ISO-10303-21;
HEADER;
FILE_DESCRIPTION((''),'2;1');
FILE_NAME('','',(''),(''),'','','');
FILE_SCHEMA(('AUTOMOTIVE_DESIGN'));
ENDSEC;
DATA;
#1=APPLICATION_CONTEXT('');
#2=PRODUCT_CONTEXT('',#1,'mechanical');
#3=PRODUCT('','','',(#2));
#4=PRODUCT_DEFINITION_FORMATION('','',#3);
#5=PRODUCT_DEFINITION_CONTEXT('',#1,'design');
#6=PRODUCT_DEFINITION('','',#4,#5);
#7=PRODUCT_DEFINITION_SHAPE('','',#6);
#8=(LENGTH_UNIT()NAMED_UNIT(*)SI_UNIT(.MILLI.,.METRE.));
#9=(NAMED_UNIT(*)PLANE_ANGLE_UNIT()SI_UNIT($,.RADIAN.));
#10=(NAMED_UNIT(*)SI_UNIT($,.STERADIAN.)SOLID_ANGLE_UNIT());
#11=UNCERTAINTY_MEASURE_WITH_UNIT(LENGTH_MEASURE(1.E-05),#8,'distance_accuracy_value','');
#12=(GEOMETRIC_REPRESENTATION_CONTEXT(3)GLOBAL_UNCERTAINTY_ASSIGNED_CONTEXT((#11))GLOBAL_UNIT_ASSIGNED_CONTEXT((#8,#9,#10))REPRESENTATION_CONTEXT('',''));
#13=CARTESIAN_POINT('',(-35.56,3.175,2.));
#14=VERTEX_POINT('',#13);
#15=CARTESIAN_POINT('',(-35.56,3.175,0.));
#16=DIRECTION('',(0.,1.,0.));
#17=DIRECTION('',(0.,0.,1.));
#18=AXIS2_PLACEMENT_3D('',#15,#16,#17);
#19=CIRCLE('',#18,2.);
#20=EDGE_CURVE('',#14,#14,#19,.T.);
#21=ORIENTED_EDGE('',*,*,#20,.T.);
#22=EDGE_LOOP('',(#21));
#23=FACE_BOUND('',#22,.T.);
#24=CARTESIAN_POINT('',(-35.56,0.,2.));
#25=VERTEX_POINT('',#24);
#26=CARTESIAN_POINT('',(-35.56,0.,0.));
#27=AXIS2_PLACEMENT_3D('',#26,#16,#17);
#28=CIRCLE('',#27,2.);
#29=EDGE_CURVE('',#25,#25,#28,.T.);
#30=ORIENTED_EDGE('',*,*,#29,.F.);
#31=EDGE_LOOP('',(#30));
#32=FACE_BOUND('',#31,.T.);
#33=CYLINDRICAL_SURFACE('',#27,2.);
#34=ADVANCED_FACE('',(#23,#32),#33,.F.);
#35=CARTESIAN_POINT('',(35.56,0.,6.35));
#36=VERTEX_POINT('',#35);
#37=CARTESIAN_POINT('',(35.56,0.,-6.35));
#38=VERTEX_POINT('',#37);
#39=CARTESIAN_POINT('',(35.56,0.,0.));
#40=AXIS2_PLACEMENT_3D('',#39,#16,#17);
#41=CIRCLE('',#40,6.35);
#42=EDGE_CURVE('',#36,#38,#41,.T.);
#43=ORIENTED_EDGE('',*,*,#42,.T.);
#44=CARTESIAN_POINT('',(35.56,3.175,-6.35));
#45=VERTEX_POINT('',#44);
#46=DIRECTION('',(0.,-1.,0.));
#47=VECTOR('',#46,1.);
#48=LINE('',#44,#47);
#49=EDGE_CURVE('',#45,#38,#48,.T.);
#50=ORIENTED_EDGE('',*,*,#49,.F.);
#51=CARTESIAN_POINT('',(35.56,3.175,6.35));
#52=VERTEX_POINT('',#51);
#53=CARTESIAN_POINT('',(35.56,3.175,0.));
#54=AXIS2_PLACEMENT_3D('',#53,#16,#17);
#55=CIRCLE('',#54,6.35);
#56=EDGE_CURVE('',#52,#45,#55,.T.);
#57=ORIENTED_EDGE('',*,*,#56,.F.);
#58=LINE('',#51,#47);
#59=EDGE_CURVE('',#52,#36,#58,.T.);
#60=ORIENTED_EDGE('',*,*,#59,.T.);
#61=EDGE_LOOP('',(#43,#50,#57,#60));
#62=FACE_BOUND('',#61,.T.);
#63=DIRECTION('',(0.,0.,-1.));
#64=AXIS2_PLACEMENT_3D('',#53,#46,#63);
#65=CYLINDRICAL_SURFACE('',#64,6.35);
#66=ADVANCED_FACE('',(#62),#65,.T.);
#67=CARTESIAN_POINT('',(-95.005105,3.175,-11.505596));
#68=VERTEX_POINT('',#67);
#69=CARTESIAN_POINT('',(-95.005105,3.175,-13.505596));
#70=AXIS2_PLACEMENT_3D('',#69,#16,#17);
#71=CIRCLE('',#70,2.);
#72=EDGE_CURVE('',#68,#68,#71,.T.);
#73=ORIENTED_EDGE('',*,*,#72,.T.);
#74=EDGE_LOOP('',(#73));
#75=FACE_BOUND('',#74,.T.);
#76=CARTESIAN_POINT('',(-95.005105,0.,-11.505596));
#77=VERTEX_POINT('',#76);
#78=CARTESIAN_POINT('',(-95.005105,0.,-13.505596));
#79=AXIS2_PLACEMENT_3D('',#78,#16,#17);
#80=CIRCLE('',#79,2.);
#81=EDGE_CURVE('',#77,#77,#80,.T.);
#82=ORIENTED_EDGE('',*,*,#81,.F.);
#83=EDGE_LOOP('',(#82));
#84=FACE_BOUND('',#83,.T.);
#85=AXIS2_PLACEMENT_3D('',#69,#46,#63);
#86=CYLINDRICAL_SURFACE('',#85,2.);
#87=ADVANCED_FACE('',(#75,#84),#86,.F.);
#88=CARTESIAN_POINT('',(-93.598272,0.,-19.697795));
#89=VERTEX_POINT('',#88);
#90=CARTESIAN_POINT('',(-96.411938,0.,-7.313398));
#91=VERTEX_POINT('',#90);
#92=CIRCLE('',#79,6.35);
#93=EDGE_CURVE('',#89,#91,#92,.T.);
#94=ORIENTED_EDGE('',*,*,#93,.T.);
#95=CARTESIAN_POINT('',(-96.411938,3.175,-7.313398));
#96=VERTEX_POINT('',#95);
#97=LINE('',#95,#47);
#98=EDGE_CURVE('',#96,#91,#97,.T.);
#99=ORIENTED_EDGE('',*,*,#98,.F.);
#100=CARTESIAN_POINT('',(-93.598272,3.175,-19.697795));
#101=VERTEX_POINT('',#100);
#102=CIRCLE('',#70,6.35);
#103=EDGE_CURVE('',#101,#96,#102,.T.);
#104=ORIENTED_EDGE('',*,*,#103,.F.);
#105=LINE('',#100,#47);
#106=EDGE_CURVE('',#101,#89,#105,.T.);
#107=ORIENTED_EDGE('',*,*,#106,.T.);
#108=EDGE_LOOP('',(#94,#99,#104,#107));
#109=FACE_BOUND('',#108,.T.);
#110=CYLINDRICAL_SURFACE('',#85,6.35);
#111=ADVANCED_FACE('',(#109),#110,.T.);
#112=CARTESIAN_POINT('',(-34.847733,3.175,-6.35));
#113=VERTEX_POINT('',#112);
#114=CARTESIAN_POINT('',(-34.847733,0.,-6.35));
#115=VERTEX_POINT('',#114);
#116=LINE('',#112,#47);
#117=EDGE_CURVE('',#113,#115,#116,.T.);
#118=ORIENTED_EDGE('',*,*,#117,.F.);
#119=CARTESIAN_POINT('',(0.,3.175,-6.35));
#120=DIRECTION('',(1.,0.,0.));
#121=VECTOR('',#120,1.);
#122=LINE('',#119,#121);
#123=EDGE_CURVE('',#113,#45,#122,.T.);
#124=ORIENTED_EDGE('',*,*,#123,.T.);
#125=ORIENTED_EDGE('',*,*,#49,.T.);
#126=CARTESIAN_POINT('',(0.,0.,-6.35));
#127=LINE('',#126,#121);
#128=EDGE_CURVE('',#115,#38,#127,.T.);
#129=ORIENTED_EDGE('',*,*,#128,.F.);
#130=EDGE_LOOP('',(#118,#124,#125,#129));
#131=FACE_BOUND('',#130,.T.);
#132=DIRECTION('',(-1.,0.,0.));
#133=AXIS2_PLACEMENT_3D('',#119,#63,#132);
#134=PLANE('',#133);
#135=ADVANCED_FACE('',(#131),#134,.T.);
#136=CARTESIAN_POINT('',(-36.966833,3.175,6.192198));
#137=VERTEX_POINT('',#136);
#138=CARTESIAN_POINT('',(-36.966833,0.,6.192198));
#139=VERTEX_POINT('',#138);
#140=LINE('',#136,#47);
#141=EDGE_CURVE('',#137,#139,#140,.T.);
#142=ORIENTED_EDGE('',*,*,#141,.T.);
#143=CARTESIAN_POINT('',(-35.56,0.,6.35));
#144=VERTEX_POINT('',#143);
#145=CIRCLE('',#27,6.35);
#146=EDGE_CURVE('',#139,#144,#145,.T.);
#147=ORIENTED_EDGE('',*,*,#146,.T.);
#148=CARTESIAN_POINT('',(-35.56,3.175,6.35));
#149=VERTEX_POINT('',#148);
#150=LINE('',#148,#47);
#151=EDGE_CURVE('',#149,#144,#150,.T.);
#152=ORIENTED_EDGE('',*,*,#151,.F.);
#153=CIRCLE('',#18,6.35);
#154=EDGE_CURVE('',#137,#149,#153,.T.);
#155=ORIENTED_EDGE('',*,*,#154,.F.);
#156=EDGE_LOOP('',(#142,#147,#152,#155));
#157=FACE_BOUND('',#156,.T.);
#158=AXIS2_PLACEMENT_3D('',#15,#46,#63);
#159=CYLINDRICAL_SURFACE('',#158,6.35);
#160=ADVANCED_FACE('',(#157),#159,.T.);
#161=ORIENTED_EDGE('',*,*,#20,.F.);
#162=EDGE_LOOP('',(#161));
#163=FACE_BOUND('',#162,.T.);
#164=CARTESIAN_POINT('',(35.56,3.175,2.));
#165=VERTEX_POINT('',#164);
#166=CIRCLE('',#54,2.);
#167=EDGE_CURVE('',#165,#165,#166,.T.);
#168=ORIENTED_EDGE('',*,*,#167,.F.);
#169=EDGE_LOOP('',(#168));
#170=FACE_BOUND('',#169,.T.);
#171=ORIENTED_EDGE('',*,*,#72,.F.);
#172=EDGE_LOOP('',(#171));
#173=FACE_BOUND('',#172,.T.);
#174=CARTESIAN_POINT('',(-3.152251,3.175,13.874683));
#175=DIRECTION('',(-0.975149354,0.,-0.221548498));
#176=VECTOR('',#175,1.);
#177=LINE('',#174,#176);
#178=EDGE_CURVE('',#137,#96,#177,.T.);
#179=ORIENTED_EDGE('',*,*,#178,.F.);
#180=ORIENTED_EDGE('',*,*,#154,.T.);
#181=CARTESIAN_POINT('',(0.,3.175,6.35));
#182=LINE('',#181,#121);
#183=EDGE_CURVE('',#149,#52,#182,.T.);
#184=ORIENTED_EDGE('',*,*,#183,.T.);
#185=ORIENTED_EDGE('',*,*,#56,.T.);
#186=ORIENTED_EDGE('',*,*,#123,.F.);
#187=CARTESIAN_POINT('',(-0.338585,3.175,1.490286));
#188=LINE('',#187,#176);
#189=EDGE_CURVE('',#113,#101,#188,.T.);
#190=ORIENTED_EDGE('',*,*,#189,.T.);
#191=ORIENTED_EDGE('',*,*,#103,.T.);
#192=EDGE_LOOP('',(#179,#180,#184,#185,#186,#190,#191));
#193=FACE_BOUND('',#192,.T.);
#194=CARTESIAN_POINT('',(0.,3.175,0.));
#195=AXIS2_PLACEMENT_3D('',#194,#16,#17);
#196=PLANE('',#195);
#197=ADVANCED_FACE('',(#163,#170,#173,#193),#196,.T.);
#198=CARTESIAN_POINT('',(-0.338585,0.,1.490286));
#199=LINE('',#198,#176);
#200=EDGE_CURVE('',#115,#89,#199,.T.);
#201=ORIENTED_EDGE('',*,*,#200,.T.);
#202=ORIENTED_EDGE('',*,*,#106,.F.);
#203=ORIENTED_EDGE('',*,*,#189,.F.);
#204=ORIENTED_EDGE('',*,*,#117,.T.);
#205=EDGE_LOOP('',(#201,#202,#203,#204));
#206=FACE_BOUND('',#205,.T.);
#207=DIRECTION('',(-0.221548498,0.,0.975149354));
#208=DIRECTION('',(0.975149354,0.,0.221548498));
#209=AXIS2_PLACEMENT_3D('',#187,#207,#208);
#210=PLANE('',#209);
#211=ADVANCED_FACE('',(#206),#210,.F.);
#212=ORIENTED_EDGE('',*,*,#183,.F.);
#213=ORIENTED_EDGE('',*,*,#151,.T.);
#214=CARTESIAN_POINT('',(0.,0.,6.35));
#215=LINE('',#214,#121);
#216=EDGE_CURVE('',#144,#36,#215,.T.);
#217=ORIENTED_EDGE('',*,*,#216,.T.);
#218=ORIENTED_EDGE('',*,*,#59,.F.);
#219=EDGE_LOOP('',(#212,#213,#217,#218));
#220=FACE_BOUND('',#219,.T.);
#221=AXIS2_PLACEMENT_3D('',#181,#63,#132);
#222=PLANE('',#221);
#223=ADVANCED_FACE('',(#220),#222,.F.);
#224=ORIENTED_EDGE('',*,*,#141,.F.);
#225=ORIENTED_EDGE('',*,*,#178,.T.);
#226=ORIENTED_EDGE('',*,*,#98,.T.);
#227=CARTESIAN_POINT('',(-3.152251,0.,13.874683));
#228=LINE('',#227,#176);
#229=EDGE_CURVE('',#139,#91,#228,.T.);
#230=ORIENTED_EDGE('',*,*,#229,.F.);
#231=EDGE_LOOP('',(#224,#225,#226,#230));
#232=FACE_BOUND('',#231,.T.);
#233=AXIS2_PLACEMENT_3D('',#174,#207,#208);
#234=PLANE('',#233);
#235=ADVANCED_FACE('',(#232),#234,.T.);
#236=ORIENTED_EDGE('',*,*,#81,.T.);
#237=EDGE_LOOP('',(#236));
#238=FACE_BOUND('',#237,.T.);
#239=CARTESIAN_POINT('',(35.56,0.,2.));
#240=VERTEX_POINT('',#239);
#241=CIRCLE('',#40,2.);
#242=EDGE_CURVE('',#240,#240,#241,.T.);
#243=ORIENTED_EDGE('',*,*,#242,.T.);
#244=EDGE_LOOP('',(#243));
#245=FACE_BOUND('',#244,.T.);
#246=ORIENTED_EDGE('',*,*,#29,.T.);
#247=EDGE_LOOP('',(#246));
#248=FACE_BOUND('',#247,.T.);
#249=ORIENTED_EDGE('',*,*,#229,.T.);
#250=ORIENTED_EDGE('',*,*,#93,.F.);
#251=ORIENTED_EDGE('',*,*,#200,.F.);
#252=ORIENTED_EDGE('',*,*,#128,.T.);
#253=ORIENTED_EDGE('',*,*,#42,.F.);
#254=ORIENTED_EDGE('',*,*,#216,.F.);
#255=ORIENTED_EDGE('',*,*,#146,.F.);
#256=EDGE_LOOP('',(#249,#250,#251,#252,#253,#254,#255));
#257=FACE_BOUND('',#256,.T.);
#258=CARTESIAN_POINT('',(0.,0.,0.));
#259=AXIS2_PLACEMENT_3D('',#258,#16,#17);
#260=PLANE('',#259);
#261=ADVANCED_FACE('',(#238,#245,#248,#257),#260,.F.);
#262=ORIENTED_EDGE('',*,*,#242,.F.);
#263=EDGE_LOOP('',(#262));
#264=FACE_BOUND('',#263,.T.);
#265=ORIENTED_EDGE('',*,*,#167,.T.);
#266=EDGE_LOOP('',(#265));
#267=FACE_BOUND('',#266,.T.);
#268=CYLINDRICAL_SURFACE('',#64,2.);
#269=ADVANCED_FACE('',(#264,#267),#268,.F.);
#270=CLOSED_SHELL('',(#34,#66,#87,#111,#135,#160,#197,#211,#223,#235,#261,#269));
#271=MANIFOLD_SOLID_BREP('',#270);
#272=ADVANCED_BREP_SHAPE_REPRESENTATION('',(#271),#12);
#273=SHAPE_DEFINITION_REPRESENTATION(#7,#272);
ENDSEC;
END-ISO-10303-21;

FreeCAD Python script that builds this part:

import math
import FreeCAD as App
import Part
import Sketcher
from FreeCAD import Vector
Q = App.Units.Quantity

doc = App.newDocument("Part")
body = doc.addObject("PartDesign::Body", "Body")

# Sketch on XZ plane
sketch1 = body.newObject("Sketcher::SketchObject", "Sketch")
sketch1.AttachmentSupport = (doc.getObject("XZ_Plane"), [""])
sketch1.MapMode = "FlatFace"
sketch1.addGeometry([
    Part.LineSegment(Vector(-96.411938, -7.313398, 0), Vector(-36.966833, 6.192198, 0)),  # 0
    Part.ArcOfCircle(Part.Circle(Vector(-35.56, 0, 0), Vector(0, 0, 1), 6.35), math.radians(-77.2), math.radians(102.8)),  # 1
    Part.LineSegment(Vector(-34.153167, -6.192198, 0), Vector(-93.598272, -19.697795, 0)),  # 2
    Part.ArcOfCircle(Part.Circle(Vector(-95.005105, -13.505596, 0), Vector(0, 0, 1), 6.35), math.radians(102.8), math.radians(282.8)),  # 3
    Part.Circle(Vector(-95.005105, -13.505596, 0), Vector(0, 0, 1), 2),  # 4
], False)
sketch1.addConstraint([
    Sketcher.Constraint("Tangent", 0, 2, 1, 2),
    Sketcher.Constraint("Tangent", 1, 1, 2, 1),
    Sketcher.Constraint("Tangent", 2, 2, 3, 2),
    Sketcher.Constraint("Tangent", 3, 1, 0, 1),
    Sketcher.Constraint("Coincident", 4, 3, 3, 3),
    Sketcher.Constraint("Equal", 1, 3),
    Sketcher.Constraint("PointOnObject", 1, 3, -1),
    Sketcher.Constraint("Radius", 1, Q("0.25 in")),
    Sketcher.Constraint("Distance", 0, Q("2.4 in")),
    Sketcher.Constraint("DistanceX", 1, 3, -1, 1, Q("1.4 in")),
    Sketcher.Constraint("Angle", 0, Q("12.8 deg")),
    Sketcher.Constraint("Diameter", 4, Q("4 mm")),
])
pad1 = body.newObject("PartDesign::Pad", "Pad")
pad1.Profile = sketch1
pad1.Length = Q("0.125 in")
pad1.Reversed = True

# Sketch on XZ plane
sketch2 = body.newObject("Sketcher::SketchObject", "Sketch001")
sketch2.AttachmentSupport = (doc.getObject("XZ_Plane"), [""])
sketch2.MapMode = "FlatFace"
sketch2.addGeometry([
    Part.LineSegment(Vector(35.56, -6.35, 0), Vector(-35.56, -6.35, 0)),  # 0
    Part.ArcOfCircle(Part.Circle(Vector(-35.56, 0, 0), Vector(0, 0, 1), 6.35), math.radians(90), math.radians(270)),  # 1
    Part.LineSegment(Vector(-35.56, 6.35, 0), Vector(35.56, 6.35, 0)),  # 2
    Part.ArcOfCircle(Part.Circle(Vector(35.56, 0, 0), Vector(0, 0, 1), 6.35), math.radians(-90), math.radians(90)),  # 3
    Part.Circle(Vector(35.56, 0, 0), Vector(0, 0, 1), 2),  # 4
], False)
sketch2.addConstraint([
    Sketcher.Constraint("Tangent", 0, 2, 1, 2),
    Sketcher.Constraint("Tangent", 1, 1, 2, 1),
    Sketcher.Constraint("Tangent", 2, 2, 3, 2),
    Sketcher.Constraint("Tangent", 3, 1, 0, 1),
    Sketcher.Constraint("Horizontal", 0),
    Sketcher.Constraint("Horizontal", 2),
    Sketcher.Constraint("Coincident", 4, 3, 3, 3),
    Sketcher.Constraint("Symmetric", 1, 3, 3, 3, -1, 1),
    Sketcher.Constraint("Radius", 1, Q("0.25 in")),
    Sketcher.Constraint("DistanceX", 0, 2, 0, 1, Q("2.8 in")),
    Sketcher.Constraint("Diameter", 4, Q("4 mm")),
])
pad2 = body.newObject("PartDesign::Pad", "Pad001")
pad2.Profile = sketch2
pad2.Length = Q("0.125 in")
pad2.Reversed = True

# Sketch on XZ plane
sketch3 = body.newObject("Sketcher::SketchObject", "Sketch002")
sketch3.AttachmentSupport = (doc.getObject("XZ_Plane"), [""])
sketch3.MapMode = "FlatFace"
sketch3.AttachmentOffset = App.Placement(Vector(0, 0, -0.125 * 25.4), App.Rotation())
sketch3.addGeometry(Part.Circle(Vector(-35.56, 0, 0), Vector(0, 0, 1), 2), False)
sketch3.addConstraint([
    Sketcher.Constraint("PointOnObject", 0, 3, -1),
    Sketcher.Constraint("DistanceX", 0, 3, -1, 1, Q("1.4 in")),
    Sketcher.Constraint("Diameter", 0, Q("4 mm")),
])
pocket1 = body.newObject("PartDesign::Pocket", "Pocket")
pocket1.Profile = sketch3
pocket1.Type = "ThroughAll"
pocket1.Midplane = True

doc.recompute()
